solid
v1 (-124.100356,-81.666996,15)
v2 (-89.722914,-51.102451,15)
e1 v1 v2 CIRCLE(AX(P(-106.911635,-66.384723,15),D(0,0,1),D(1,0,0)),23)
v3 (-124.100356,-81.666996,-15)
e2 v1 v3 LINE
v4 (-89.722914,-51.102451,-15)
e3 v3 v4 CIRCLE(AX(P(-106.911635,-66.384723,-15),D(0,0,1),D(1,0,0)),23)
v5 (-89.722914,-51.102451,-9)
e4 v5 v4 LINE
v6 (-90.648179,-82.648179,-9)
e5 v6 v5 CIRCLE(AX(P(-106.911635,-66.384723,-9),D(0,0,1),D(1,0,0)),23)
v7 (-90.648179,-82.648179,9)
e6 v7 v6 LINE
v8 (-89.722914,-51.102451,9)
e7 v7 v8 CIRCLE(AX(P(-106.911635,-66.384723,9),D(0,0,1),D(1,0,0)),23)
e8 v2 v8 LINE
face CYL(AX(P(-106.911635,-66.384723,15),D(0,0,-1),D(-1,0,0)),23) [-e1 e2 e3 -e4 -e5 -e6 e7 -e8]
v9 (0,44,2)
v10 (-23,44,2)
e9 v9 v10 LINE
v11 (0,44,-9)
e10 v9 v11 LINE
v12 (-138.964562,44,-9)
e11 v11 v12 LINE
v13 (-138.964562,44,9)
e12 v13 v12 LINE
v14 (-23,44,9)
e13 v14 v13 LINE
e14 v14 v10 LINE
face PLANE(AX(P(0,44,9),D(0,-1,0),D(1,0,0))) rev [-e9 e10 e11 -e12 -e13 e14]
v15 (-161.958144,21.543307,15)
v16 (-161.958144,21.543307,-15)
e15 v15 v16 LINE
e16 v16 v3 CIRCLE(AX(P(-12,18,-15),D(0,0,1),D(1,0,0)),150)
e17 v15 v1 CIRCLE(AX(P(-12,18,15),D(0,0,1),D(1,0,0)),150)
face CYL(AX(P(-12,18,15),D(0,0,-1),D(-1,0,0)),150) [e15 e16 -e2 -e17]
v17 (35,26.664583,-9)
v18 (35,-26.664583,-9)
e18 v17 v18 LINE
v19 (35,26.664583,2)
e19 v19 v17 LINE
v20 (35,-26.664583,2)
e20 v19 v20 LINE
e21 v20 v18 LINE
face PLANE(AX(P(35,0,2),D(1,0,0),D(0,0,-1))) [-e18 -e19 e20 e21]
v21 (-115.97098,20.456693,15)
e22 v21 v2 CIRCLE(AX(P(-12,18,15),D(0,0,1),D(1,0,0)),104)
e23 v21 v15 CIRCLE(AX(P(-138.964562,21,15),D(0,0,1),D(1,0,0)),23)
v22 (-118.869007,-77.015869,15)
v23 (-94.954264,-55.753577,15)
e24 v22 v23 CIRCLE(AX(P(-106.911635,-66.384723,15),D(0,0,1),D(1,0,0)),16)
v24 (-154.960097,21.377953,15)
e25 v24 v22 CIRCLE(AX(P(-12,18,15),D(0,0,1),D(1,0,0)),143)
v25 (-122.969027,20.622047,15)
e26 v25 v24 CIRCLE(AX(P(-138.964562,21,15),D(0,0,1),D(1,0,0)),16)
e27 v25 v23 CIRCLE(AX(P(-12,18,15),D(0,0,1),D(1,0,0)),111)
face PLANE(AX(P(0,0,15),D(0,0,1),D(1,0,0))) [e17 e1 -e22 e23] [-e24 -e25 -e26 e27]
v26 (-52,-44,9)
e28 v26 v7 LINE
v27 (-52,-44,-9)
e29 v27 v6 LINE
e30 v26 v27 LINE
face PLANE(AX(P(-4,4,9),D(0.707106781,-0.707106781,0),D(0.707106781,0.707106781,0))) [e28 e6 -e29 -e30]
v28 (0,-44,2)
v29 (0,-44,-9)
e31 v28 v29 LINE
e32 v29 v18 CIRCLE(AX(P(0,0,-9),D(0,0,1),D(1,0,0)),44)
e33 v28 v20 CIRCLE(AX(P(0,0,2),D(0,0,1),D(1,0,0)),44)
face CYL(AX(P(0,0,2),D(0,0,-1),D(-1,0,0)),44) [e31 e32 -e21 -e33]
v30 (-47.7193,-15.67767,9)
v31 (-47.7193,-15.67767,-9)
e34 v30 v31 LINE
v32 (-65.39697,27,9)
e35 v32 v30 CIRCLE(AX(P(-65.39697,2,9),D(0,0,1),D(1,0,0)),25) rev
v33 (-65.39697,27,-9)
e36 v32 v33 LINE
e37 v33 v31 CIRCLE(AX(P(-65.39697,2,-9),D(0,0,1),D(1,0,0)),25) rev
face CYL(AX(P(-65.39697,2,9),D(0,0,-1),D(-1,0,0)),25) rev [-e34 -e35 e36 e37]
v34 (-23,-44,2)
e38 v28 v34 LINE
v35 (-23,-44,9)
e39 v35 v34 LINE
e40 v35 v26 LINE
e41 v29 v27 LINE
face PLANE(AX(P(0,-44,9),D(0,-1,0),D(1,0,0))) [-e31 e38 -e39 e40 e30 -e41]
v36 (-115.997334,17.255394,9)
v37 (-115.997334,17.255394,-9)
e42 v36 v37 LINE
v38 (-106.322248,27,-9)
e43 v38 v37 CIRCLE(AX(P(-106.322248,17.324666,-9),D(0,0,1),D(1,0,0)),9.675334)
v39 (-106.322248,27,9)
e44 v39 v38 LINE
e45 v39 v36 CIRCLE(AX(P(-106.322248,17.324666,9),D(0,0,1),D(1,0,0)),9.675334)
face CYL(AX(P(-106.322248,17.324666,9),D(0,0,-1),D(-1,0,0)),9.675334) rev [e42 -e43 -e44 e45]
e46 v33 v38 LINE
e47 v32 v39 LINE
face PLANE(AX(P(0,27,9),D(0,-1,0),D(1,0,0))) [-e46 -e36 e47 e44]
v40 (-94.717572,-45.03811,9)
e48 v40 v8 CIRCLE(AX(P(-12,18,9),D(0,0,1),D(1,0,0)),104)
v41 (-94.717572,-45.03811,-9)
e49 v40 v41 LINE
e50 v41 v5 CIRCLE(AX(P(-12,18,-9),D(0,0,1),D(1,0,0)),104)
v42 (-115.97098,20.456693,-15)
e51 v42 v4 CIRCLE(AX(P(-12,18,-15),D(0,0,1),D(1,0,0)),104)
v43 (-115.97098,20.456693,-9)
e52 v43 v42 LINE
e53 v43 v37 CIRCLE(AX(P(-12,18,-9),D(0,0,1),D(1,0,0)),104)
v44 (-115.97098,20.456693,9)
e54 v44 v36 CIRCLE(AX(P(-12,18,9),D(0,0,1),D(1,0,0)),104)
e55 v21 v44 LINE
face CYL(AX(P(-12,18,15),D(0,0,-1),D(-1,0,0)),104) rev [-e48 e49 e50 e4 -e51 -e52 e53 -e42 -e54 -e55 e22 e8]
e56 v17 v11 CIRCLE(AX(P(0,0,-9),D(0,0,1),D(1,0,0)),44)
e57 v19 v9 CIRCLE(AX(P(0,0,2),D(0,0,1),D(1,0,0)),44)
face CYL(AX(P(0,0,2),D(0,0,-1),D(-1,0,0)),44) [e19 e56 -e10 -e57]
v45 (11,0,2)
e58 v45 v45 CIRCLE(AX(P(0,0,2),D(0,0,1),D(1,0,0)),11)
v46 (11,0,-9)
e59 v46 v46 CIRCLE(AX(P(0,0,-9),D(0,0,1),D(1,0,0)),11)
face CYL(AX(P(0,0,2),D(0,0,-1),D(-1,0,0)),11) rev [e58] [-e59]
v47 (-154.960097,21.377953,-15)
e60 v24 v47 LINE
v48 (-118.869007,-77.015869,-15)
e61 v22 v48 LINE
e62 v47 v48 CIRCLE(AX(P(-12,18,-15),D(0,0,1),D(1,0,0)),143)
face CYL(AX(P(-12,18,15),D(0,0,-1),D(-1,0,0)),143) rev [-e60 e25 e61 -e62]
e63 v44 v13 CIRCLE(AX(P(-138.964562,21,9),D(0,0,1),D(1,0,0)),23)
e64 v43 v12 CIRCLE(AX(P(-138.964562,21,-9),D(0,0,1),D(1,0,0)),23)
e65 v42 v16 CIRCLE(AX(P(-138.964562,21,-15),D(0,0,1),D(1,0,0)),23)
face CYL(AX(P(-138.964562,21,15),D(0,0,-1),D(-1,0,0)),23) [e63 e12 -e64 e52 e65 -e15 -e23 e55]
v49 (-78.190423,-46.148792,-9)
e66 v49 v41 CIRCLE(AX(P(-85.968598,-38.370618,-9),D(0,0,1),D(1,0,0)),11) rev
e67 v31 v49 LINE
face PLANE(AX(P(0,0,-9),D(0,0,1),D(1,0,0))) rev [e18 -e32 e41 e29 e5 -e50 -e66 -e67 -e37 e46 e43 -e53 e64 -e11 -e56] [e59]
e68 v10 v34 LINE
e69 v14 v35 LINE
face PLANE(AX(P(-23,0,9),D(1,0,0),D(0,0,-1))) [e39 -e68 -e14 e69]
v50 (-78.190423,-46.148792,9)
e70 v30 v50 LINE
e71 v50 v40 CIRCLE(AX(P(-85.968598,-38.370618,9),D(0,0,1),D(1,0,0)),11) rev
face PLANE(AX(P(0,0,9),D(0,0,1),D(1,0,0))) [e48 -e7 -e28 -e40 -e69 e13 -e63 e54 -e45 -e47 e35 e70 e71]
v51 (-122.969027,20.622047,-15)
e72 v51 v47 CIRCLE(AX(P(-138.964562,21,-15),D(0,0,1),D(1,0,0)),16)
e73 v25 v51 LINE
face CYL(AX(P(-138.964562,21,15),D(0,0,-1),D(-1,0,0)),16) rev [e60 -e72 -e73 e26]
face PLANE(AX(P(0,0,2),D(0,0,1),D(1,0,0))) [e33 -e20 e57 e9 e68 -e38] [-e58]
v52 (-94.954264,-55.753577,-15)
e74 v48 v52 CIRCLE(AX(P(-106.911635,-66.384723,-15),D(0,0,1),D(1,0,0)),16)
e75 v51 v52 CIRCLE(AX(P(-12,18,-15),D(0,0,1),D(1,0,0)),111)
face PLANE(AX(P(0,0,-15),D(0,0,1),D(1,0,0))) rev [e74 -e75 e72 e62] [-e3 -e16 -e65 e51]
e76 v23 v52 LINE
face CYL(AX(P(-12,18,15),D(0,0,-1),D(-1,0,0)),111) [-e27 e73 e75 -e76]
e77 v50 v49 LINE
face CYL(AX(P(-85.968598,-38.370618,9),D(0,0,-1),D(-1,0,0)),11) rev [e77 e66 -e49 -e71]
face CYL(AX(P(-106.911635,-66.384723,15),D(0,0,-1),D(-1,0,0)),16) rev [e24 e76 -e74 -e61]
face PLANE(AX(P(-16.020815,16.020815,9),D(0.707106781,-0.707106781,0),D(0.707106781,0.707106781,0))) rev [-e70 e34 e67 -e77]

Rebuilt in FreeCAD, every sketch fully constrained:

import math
import FreeCAD as App
import Part
import Sketcher
from FreeCAD import Vector
Q = App.Units.Quantity

doc = App.newDocument("Part")
body = doc.addObject("PartDesign::Body", "Body")

sketch1 = body.newObject("Sketcher::SketchObject", "Sketch")
sketch1.AttachmentSupport = (doc.getObject("XY_Plane"), [""])
sketch1.MapMode = "FlatFace"
sketch1.addGeometry(Part.ArcOfCircle(Part.Circle(Vector(-12, 18, 0), Vector(0, 0, 1), 150), math.radians(179), math.radians(222)), False)
sketch1.addGeometry(Part.ArcOfCircle(Part.Circle(Vector(-107, -66, 0), Vector(0, 0, 1), 23), math.radians(-138), math.radians(42)), False)
sketch1.addGeometry(Part.ArcOfCircle(Part.Circle(Vector(-12, 18, 0), Vector(0, 0, 1), 104), math.radians(179), math.radians(222)), False)
sketch1.addGeometry(Part.ArcOfCircle(Part.Circle(Vector(-139, 21, 0), Vector(0, 0, 1), 23), math.radians(-1), math.radians(179)), False)
sketch1.addGeometry(Part.ArcOfCircle(Part.Circle(Vector(-139, 21, 0), Vector(0, 0, 1), 16), math.radians(-1), math.radians(179)), False)
sketch1.addGeometry(Part.ArcOfCircle(Part.Circle(Vector(-12, 18, 0), Vector(0, 0, 1), 111), math.radians(179), math.radians(222)), False)
sketch1.addGeometry(Part.ArcOfCircle(Part.Circle(Vector(-107, -66, 0), Vector(0, 0, 1), 16), math.radians(-138), math.radians(42)), False)
sketch1.addGeometry(Part.ArcOfCircle(Part.Circle(Vector(-12, 18, 0), Vector(0, 0, 1), 143), math.radians(179), math.radians(222)), False)
sketch1.addConstraint(Sketcher.Constraint("Tangent", 0, 2, 1, 1))
sketch1.addConstraint(Sketcher.Constraint("Tangent", 1, 2, 2, 2))
sketch1.addConstraint(Sketcher.Constraint("Tangent", 2, 1, 3, 1))
sketch1.addConstraint(Sketcher.Constraint("Tangent", 3, 2, 0, 1))
sketch1.addConstraint(Sketcher.Constraint("Tangent", 4, 1, 5, 1))
sketch1.addConstraint(Sketcher.Constraint("Tangent", 5, 2, 6, 2))
sketch1.addConstraint(Sketcher.Constraint("Tangent", 6, 1, 7, 2))
sketch1.addConstraint(Sketcher.Constraint("Tangent", 7, 1, 4, 2))
sketch1.addConstraint(Sketcher.Constraint("Coincident", 2, 3, 0, 3))
sketch1.addConstraint(Sketcher.Constraint("Coincident", 4, 3, 3, 3))
sketch1.addConstraint(Sketcher.Constraint("Coincident", 5, 3, 0, 3))
sketch1.addConstraint(Sketcher.Constraint("Coincident", 6, 3, 1, 3))
sketch1.addConstraint(Sketcher.Constraint("Radius", 0, Q("150 mm")))
sketch1.addConstraint(Sketcher.Constraint("Radius", 1, Q("23 mm")))
sketch1.addConstraint(Sketcher.Constraint("Radius", 4, Q("16 mm")))
sketch1.addConstraint(Sketcher.Constraint("Radius", 7, Q("143 mm")))
sketch1.addConstraint(Sketcher.Constraint("DistanceX", 0, 3, -1, 1, Q("12 mm")))
sketch1.addConstraint(Sketcher.Constraint("DistanceY", -1, 1, 0, 3, Q("18 mm")))
sketch1.addConstraint(Sketcher.Constraint("DistanceY", -1, 1, 3, 3, Q("21 mm")))
sketch1.addConstraint(Sketcher.Constraint("DistanceY", 1, 2, -1, 1, Q("51.102451 mm")))
pad1 = body.newObject("PartDesign::Pad", "Pad")
pad1.Profile = sketch1
pad1.Length = 30
pad1.Midplane = True

sketch2 = body.newObject("Sketcher::SketchObject", "Sketch001")
sketch2.AttachmentSupport = (doc.getObject("XY_Plane"), [""])
sketch2.MapMode = "FlatFace"
sketch2.addGeometry(Part.LineSegment(Vector(-52, -44, 0), Vector(-23, -44, 0)), False)
sketch2.addGeometry(Part.LineSegment(Vector(-23, -44, 0), Vector(-23, 44, 0)), False)
sketch2.addGeometry(Part.LineSegment(Vector(-23, 44, 0), Vector(-139, 44, 0)), False)
sketch2.addGeometry(Part.ArcOfCircle(Part.Circle(Vector(-139, 21, 0), Vector(0, 0, 1), 23), math.radians(-1), math.radians(90)), False)
sketch2.addGeometry(Part.ArcOfCircle(Part.Circle(Vector(-12, 18, 0), Vector(0, 0, 1), 104), math.radians(178.65), math.radians(180.41)), False)
sketch2.addGeometry(Part.ArcOfCircle(Part.Circle(Vector(-106.3, 17.3, 0), Vector(0, 0, 1), 9.7), math.radians(90), math.radians(180)), False)
sketch2.addGeometry(Part.LineSegment(Vector(-106.3, 27, 0), Vector(-65.4, 27, 0)), False)
sketch2.addGeometry(Part.ArcOfCircle(Part.Circle(Vector(-65.4, 2, 0), Vector(0, 0, 1), 25), math.radians(-45), math.radians(90)), False)
sketch2.addGeometry(Part.LineSegment(Vector(-47.7, -15.7, 0), Vector(-78.2, -46.1, 0)), False)
sketch2.addGeometry(Part.ArcOfCircle(Part.Circle(Vector(-86, -38.4, 0), Vector(0, 0, 1), 11), math.radians(-143), math.radians(-45)), False)
sketch2.addGeometry(Part.ArcOfCircle(Part.Circle(Vector(-12, 18, 0), Vector(0, 0, 1), 104), math.radians(-142.69), math.radians(-138.36)), False)
sketch2.addGeometry(Part.ArcOfCircle(Part.Circle(Vector(-106.9, -66.4, 0), Vector(0, 0, 1), 23), math.radians(-45), math.radians(42)), False)
sketch2.addGeometry(Part.LineSegment(Vector(-90.6, -82.6, 0), Vector(-52, -44, 0)), False)
sketch2.addConstraint(Sketcher.Constraint("Coincident", 0, 2, 1, 1))
sketch2.addConstraint(Sketcher.Constraint("Coincident", 1, 2, 2, 1))
sketch2.addConstraint(Sketcher.Constraint("Tangent", 2, 2, 3, 2))
sketch2.addConstraint(Sketcher.Constraint("Tangent", 3, 1, 4, 1))
sketch2.addConstraint(Sketcher.Constraint("Tangent", 4, 2, 5, 2))
sketch2.addConstraint(Sketcher.Constraint("Tangent", 5, 1, 6, 1))
sketch2.addConstraint(Sketcher.Constraint("Tangent", 6, 2, 7, 2))
sketch2.addConstraint(Sketcher.Constraint("Tangent", 7, 1, 8, 1))
sketch2.addConstraint(Sketcher.Constraint("Tangent", 8, 2, 9, 2))
sketch2.addConstraint(Sketcher.Constraint("Tangent", 9, 1, 10, 1))
sketch2.addConstraint(Sketcher.Constraint("Tangent", 10, 2, 11, 2))
sketch2.addConstraint(Sketcher.Constraint("Tangent", 11, 1, 12, 1))
sketch2.addConstraint(Sketcher.Constraint("Coincident", 12, 2, 0, 1))
sketch2.addConstraint(Sketcher.Constraint("Horizontal", 0))
sketch2.addConstraint(Sketcher.Constraint("Vertical", 1))
sketch2.addConstraint(Sketcher.Constraint("Horizontal", 2))
sketch2.addConstraint(Sketcher.Constraint("Horizontal", 6))
sketch2.addConstraint(Sketcher.Constraint("Coincident", 10, 3, 4, 3))
sketch2.addConstraint(Sketcher.Constraint("Equal", 4, 10))
sketch2.addConstraint(Sketcher.Constraint("Equal", 3, 11))
sketch2.addConstraint(Sketcher.Constraint("Parallel", 8, 12))
sketch2.addConstraint(Sketcher.Constraint("Radius", 3, Q("23 mm")))
sketch2.addConstraint(Sketcher.Constraint("Radius", 4, Q("104.000002 mm")))
sketch2.addConstraint(Sketcher.Constraint("Radius", 7, Q("25 mm")))
sketch2.addConstraint(Sketcher.Constraint("Radius", 9, Q("11 mm")))
sketch2.addConstraint(Sketcher.Constraint("DistanceX", 0, 1, 0, 2, Q("29 mm")))
sketch2.addConstraint(Sketcher.Constraint("DistanceY", 1, 1, 1, 2, Q("88 mm")))
sketch2.addConstraint(Sketcher.Constraint("Angle", 8, Q("-135 deg")))
sketch2.addConstraint(Sketcher.Constraint("DistanceY", -1, 1, 3, 3, Q("21 mm")))
sketch2.addConstraint(Sketcher.Constraint("DistanceX", 4, 3, -1, 1, Q("11.999998 mm")))
sketch2.addConstraint(Sketcher.Constraint("DistanceY", -1, 1, 4, 3, Q("18 mm")))
sketch2.addConstraint(Sketcher.Constraint("DistanceY", -1, 1, 7, 3, Q("2 mm")))
sketch2.addConstraint(Sketcher.Constraint("DistanceX", 0, 2, -1, 1, Q("23 mm")))
sketch2.addConstraint(Sketcher.Constraint("Radius", 5, Q("9.675334 mm")))
sketch2.addConstraint(Sketcher.Constraint("DistanceX", 6, 1, 6, 2, Q("40.925279 mm")))
pad2 = body.newObject("PartDesign::Pad", "Pad001")
pad2.Profile = sketch2
pad2.Length = 18
pad2.Midplane = True

sketch3 = body.newObject("Sketcher::SketchObject", "Sketch002")
sketch3.AttachmentSupport = (doc.getObject("XY_Plane"), [""])
sketch3.MapMode = "FlatFace"
sketch3.AttachmentOffset = App.Placement(Vector(0, 0, -3.5), App.Rotation())
sketch3.addGeometry(Part.LineSegment(Vector(-23, -44, 0), Vector(0, -44, 0)), False)
sketch3.addGeometry(Part.ArcOfCircle(Part.Circle(Vector(0, 0, 0), Vector(0, 0, 1), 44), math.radians(-90), math.radians(-37)), False)
sketch3.addGeometry(Part.LineSegment(Vector(35, -27, 0), Vector(35, 27, 0)), False)
sketch3.addGeometry(Part.ArcOfCircle(Part.Circle(Vector(0, 0, 0), Vector(0, 0, 1), 44), math.radians(37), math.radians(90)), False)
sketch3.addGeometry(Part.LineSegment(Vector(0, 44, 0), Vector(-23, 44, 0)), False)
sketch3.addGeometry(Part.LineSegment(Vector(-23, 44, 0), Vector(-23, -44, 0)), False)
sketch3.addGeometry(Part.Circle(Vector(0, 0, 0), Vector(0, 0, 1), 11), False)
sketch3.addConstraint(Sketcher.Constraint("Tangent", 0, 2, 1, 1))
sketch3.addConstraint(Sketcher.Constraint("Coincident", 1, 2, 2, 1))
sketch3.addConstraint(Sketcher.Constraint("Coincident", 2, 2, 3, 1))
sketch3.addConstraint(Sketcher.Constraint("Tangent", 3, 2, 4, 1))
sketch3.addConstraint(Sketcher.Constraint("Coincident", 4, 2, 5, 1))
sketch3.addConstraint(Sketcher.Constraint("Coincident", 5, 2, 0, 1))
sketch3.addConstraint(Sketcher.Constraint("Horizontal", 0))
sketch3.addConstraint(Sketcher.Constraint("Vertical", 2))
sketch3.addConstraint(Sketcher.Constraint("Horizontal", 4))
sketch3.addConstraint(Sketcher.Constraint("Vertical", 5))
sketch3.addConstraint(Sketcher.Constraint("Coincident", 1, 3, -1, 1))
sketch3.addConstraint(Sketcher.Constraint("Coincident", 3, 3, -1, 1))
sketch3.addConstraint(Sketcher.Constraint("Coincident", 6, 3, -1, 1))
sketch3.addConstraint(Sketcher.Constraint("Equal", 1, 3))
sketch3.addConstraint(Sketcher.Constraint("Diameter", 6, Q("22 mm")))
sketch3.addConstraint(Sketcher.Constraint("Radius", 1, Q("44 mm")))
sketch3.addConstraint(Sketcher.Constraint("DistanceX", 0, 1, 0, 2, Q("23 mm")))
sketch3.addConstraint(Sketcher.Constraint("DistanceX", -1, 1, 1, 2, Q("35 mm")))
pad3 = body.newObject("PartDesign::Pad", "Pad002")
pad3.Profile = sketch3
pad3.Length = 11
pad3.Midplane = True

doc.recompute()
